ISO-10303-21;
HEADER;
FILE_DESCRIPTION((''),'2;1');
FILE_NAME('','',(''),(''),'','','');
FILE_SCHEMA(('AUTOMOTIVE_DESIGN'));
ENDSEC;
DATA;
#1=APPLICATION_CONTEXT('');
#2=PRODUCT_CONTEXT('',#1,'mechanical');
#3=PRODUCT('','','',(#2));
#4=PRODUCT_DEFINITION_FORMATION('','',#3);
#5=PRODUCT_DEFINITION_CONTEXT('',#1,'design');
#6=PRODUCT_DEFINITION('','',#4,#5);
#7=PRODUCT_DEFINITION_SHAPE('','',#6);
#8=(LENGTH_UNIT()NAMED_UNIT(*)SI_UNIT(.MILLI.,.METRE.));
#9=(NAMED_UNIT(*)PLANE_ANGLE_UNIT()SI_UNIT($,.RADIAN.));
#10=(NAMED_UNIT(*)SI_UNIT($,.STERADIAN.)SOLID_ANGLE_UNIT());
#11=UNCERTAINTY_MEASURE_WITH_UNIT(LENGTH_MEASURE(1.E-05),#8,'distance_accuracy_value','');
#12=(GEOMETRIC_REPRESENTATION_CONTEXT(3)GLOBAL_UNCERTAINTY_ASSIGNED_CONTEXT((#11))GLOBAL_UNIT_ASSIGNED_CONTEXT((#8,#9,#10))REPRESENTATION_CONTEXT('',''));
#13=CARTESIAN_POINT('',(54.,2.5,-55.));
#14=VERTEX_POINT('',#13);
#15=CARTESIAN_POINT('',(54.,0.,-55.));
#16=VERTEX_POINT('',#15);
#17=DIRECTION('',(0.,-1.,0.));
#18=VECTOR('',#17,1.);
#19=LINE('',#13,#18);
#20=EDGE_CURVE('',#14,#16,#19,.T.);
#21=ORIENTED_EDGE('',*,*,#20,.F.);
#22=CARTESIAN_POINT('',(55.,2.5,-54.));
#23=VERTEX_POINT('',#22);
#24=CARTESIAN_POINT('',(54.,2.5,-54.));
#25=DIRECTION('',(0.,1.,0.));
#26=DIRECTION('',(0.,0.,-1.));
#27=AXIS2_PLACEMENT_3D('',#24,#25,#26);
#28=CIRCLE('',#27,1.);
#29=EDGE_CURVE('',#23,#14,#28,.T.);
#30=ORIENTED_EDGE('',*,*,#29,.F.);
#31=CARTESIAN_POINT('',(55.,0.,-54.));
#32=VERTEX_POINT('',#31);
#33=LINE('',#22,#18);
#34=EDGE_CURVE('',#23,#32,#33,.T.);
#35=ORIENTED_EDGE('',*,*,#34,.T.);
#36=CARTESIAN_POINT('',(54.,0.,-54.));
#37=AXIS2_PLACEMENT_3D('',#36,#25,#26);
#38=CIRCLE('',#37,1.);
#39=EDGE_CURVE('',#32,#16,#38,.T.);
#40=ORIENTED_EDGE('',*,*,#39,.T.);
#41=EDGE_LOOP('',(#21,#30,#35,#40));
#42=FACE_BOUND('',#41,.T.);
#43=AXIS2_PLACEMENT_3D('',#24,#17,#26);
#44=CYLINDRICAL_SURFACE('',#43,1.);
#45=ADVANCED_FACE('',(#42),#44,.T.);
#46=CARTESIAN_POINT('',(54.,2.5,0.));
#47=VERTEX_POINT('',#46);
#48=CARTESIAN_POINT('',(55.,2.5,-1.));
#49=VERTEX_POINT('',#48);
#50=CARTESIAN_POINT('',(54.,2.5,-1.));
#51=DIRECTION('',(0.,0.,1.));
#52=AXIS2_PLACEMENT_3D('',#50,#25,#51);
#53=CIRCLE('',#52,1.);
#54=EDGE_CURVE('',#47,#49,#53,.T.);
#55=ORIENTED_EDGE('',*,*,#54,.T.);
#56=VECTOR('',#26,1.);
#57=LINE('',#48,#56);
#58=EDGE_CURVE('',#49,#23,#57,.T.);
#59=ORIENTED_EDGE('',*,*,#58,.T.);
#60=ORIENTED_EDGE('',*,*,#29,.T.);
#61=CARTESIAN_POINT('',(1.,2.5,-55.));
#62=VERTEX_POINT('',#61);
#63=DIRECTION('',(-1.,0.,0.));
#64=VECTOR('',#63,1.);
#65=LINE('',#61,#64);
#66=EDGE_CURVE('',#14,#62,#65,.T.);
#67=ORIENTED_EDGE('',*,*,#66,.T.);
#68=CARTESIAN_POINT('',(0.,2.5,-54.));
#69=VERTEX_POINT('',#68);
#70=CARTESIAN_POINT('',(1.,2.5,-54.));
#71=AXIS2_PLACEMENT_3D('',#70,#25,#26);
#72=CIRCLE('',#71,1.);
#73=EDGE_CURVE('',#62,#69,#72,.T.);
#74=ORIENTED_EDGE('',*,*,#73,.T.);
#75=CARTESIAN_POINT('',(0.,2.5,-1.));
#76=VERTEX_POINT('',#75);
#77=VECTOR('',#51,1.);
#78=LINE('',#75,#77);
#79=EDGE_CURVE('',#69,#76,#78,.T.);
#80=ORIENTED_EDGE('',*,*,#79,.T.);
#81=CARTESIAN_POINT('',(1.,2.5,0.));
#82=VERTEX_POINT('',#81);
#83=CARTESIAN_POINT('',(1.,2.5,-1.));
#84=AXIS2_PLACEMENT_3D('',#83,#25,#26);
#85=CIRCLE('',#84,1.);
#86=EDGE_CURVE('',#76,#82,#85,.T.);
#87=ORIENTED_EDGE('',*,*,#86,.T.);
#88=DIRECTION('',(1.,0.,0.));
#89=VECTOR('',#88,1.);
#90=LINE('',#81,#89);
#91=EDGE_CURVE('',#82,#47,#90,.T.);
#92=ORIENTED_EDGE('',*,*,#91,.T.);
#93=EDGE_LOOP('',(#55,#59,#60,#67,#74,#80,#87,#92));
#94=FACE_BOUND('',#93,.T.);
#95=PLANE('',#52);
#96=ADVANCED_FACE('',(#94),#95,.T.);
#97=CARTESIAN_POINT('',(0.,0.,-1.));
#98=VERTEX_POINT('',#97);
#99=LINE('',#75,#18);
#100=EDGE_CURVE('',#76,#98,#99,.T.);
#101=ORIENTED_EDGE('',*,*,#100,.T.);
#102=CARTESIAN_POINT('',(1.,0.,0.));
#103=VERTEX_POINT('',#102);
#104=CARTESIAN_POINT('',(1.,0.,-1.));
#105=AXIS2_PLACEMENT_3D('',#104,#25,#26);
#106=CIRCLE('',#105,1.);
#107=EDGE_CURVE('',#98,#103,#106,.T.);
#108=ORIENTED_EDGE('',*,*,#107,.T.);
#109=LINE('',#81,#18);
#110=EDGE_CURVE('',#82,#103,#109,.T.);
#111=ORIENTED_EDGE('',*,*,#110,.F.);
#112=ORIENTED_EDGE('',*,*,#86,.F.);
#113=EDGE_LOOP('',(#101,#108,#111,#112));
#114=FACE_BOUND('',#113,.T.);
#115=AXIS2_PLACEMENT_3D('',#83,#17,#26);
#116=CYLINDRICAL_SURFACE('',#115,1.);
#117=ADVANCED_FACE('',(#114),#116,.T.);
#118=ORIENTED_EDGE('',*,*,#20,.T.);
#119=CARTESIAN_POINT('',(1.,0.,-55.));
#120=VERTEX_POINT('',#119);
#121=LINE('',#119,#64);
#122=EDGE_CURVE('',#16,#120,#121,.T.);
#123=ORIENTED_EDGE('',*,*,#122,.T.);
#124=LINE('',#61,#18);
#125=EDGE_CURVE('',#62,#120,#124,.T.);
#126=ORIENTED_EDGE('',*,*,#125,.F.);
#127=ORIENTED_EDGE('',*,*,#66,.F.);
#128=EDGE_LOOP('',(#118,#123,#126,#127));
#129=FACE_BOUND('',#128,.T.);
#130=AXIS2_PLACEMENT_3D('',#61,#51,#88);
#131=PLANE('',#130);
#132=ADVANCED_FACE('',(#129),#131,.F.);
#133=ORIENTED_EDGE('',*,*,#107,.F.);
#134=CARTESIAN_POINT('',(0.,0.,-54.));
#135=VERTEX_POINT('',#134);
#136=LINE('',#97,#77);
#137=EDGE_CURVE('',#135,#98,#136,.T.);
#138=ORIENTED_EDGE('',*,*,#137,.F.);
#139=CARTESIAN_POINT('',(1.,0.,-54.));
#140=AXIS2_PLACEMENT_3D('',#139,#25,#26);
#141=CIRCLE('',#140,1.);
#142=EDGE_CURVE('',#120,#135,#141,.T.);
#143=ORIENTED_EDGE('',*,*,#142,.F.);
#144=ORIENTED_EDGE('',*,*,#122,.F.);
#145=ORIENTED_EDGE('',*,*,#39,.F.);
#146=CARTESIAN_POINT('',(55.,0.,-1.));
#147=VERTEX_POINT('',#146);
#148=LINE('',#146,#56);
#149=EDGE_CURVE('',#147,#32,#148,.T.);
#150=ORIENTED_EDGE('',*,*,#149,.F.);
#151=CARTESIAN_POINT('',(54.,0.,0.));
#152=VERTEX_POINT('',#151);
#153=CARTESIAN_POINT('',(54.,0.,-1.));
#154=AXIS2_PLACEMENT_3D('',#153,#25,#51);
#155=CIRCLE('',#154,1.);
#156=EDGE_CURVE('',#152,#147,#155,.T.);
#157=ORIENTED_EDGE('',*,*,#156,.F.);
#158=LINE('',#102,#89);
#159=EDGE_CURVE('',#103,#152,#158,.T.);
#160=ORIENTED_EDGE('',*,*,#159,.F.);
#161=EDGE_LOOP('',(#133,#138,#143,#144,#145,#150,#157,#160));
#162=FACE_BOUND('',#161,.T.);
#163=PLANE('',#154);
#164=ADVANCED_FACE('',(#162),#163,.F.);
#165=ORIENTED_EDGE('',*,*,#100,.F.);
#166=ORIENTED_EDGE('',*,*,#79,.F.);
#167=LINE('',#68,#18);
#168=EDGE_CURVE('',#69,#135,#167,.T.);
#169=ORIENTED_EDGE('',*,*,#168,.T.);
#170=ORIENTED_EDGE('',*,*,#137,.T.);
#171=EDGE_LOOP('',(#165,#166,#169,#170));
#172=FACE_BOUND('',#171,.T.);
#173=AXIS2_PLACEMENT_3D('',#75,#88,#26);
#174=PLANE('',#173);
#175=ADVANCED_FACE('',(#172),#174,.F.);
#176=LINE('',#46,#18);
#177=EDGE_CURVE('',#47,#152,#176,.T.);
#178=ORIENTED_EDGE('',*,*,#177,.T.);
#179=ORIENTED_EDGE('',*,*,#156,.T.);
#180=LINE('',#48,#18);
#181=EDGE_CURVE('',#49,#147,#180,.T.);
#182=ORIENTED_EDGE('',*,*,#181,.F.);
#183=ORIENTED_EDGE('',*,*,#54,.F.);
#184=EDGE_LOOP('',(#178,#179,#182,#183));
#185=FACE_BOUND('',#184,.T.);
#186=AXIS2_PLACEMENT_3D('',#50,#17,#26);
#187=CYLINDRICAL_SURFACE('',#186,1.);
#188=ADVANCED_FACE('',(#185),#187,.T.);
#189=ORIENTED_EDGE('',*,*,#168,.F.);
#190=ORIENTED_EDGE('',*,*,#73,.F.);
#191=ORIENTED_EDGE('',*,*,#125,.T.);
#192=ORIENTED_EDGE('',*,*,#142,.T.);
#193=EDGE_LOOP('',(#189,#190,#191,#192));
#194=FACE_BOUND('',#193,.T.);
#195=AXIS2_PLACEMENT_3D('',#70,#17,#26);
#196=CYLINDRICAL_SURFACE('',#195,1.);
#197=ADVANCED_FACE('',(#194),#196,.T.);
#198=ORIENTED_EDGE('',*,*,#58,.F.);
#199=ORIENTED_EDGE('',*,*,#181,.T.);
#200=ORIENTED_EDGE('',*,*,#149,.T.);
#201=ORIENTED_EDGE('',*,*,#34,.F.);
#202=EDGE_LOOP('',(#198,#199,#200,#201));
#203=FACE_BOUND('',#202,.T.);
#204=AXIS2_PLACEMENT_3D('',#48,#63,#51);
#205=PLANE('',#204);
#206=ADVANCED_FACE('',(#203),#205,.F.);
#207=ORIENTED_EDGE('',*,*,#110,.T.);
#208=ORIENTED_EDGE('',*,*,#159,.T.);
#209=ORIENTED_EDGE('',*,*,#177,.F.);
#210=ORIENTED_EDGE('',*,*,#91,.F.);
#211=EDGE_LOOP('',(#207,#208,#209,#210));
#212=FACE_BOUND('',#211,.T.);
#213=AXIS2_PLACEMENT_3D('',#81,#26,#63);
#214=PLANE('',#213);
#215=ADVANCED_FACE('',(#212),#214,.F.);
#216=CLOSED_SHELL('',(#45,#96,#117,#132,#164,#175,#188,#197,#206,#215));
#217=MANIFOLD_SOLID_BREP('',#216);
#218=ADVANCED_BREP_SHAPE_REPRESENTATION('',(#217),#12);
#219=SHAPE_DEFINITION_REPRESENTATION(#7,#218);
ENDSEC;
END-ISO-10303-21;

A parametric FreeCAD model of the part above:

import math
import FreeCAD as App
import Part
import Sketcher

V = App.Vector
Q = App.Units.Quantity

doc = App.newDocument("Part")
body = doc.addObject("PartDesign::Body", "Body")

sketch1 = body.newObject("Sketcher::SketchObject", "Sketch")
sketch1.AttachmentSupport = (doc.getObject("XZ_Plane"), [""])
sketch1.MapMode = "FlatFace"
sketch1.addGeometry([
    Part.LineSegment(V(1, 0, 0), V(54, 0, 0)),
    Part.ArcOfCircle(Part.Circle(V(54, -1, 0), V(0, 0, 1), 1), math.radians(0), math.radians(90)),
    Part.LineSegment(V(55, -1, 0), V(55, -54, 0)),
    Part.ArcOfCircle(Part.Circle(V(54, -54, 0), V(0, 0, 1), 1), math.radians(-90), math.radians(0)),
    Part.LineSegment(V(54, -55, 0), V(1, -55, 0)),
    Part.ArcOfCircle(Part.Circle(V(1, -54, 0), V(0, 0, 1), 1), math.radians(-180), math.radians(-90)),
    Part.LineSegment(V(0, -54, 0), V(0, -1, 0)),
    Part.ArcOfCircle(Part.Circle(V(1, -1, 0), V(0, 0, 1), 1), math.radians(90), math.radians(180)),
], False)
sketch1.addConstraint([
    Sketcher.Constraint("Tangent", 0, 2, 1, 2),
    Sketcher.Constraint("Tangent", 1, 1, 2, 1),
    Sketcher.Constraint("Tangent", 2, 2, 3, 2),
    Sketcher.Constraint("Tangent", 3, 1, 4, 1),
    Sketcher.Constraint("Tangent", 4, 2, 5, 2),
    Sketcher.Constraint("Tangent", 5, 1, 6, 1),
    Sketcher.Constraint("Tangent", 6, 2, 7, 2),
    Sketcher.Constraint("Tangent", 7, 1, 0, 1),
    Sketcher.Constraint("Horizontal", 0),
    Sketcher.Constraint("Vertical", 2),
    Sketcher.Constraint("Horizontal", 4),
    Sketcher.Constraint("Vertical", 6),
    Sketcher.Constraint("Equal", 1, 3),
    Sketcher.Constraint("Equal", 3, 5),
    Sketcher.Constraint("Equal", 5, 7),
    Sketcher.Constraint("PointOnObject", 0, 2, -1),
    Sketcher.Constraint("PointOnObject", 5, 1, -2),
    Sketcher.Constraint("Equal", 4, 2),
    Sketcher.Constraint("Radius", 1, Q("1 mm")),
    Sketcher.Constraint("DistanceX", 0, 1, 0, 2, Q("53 mm")),
])
pad1 = body.newObject("PartDesign::Pad", "Pad")
pad1.Profile = sketch1
pad1.Length = 2.5
pad1.Reversed = True

doc.recompute()
